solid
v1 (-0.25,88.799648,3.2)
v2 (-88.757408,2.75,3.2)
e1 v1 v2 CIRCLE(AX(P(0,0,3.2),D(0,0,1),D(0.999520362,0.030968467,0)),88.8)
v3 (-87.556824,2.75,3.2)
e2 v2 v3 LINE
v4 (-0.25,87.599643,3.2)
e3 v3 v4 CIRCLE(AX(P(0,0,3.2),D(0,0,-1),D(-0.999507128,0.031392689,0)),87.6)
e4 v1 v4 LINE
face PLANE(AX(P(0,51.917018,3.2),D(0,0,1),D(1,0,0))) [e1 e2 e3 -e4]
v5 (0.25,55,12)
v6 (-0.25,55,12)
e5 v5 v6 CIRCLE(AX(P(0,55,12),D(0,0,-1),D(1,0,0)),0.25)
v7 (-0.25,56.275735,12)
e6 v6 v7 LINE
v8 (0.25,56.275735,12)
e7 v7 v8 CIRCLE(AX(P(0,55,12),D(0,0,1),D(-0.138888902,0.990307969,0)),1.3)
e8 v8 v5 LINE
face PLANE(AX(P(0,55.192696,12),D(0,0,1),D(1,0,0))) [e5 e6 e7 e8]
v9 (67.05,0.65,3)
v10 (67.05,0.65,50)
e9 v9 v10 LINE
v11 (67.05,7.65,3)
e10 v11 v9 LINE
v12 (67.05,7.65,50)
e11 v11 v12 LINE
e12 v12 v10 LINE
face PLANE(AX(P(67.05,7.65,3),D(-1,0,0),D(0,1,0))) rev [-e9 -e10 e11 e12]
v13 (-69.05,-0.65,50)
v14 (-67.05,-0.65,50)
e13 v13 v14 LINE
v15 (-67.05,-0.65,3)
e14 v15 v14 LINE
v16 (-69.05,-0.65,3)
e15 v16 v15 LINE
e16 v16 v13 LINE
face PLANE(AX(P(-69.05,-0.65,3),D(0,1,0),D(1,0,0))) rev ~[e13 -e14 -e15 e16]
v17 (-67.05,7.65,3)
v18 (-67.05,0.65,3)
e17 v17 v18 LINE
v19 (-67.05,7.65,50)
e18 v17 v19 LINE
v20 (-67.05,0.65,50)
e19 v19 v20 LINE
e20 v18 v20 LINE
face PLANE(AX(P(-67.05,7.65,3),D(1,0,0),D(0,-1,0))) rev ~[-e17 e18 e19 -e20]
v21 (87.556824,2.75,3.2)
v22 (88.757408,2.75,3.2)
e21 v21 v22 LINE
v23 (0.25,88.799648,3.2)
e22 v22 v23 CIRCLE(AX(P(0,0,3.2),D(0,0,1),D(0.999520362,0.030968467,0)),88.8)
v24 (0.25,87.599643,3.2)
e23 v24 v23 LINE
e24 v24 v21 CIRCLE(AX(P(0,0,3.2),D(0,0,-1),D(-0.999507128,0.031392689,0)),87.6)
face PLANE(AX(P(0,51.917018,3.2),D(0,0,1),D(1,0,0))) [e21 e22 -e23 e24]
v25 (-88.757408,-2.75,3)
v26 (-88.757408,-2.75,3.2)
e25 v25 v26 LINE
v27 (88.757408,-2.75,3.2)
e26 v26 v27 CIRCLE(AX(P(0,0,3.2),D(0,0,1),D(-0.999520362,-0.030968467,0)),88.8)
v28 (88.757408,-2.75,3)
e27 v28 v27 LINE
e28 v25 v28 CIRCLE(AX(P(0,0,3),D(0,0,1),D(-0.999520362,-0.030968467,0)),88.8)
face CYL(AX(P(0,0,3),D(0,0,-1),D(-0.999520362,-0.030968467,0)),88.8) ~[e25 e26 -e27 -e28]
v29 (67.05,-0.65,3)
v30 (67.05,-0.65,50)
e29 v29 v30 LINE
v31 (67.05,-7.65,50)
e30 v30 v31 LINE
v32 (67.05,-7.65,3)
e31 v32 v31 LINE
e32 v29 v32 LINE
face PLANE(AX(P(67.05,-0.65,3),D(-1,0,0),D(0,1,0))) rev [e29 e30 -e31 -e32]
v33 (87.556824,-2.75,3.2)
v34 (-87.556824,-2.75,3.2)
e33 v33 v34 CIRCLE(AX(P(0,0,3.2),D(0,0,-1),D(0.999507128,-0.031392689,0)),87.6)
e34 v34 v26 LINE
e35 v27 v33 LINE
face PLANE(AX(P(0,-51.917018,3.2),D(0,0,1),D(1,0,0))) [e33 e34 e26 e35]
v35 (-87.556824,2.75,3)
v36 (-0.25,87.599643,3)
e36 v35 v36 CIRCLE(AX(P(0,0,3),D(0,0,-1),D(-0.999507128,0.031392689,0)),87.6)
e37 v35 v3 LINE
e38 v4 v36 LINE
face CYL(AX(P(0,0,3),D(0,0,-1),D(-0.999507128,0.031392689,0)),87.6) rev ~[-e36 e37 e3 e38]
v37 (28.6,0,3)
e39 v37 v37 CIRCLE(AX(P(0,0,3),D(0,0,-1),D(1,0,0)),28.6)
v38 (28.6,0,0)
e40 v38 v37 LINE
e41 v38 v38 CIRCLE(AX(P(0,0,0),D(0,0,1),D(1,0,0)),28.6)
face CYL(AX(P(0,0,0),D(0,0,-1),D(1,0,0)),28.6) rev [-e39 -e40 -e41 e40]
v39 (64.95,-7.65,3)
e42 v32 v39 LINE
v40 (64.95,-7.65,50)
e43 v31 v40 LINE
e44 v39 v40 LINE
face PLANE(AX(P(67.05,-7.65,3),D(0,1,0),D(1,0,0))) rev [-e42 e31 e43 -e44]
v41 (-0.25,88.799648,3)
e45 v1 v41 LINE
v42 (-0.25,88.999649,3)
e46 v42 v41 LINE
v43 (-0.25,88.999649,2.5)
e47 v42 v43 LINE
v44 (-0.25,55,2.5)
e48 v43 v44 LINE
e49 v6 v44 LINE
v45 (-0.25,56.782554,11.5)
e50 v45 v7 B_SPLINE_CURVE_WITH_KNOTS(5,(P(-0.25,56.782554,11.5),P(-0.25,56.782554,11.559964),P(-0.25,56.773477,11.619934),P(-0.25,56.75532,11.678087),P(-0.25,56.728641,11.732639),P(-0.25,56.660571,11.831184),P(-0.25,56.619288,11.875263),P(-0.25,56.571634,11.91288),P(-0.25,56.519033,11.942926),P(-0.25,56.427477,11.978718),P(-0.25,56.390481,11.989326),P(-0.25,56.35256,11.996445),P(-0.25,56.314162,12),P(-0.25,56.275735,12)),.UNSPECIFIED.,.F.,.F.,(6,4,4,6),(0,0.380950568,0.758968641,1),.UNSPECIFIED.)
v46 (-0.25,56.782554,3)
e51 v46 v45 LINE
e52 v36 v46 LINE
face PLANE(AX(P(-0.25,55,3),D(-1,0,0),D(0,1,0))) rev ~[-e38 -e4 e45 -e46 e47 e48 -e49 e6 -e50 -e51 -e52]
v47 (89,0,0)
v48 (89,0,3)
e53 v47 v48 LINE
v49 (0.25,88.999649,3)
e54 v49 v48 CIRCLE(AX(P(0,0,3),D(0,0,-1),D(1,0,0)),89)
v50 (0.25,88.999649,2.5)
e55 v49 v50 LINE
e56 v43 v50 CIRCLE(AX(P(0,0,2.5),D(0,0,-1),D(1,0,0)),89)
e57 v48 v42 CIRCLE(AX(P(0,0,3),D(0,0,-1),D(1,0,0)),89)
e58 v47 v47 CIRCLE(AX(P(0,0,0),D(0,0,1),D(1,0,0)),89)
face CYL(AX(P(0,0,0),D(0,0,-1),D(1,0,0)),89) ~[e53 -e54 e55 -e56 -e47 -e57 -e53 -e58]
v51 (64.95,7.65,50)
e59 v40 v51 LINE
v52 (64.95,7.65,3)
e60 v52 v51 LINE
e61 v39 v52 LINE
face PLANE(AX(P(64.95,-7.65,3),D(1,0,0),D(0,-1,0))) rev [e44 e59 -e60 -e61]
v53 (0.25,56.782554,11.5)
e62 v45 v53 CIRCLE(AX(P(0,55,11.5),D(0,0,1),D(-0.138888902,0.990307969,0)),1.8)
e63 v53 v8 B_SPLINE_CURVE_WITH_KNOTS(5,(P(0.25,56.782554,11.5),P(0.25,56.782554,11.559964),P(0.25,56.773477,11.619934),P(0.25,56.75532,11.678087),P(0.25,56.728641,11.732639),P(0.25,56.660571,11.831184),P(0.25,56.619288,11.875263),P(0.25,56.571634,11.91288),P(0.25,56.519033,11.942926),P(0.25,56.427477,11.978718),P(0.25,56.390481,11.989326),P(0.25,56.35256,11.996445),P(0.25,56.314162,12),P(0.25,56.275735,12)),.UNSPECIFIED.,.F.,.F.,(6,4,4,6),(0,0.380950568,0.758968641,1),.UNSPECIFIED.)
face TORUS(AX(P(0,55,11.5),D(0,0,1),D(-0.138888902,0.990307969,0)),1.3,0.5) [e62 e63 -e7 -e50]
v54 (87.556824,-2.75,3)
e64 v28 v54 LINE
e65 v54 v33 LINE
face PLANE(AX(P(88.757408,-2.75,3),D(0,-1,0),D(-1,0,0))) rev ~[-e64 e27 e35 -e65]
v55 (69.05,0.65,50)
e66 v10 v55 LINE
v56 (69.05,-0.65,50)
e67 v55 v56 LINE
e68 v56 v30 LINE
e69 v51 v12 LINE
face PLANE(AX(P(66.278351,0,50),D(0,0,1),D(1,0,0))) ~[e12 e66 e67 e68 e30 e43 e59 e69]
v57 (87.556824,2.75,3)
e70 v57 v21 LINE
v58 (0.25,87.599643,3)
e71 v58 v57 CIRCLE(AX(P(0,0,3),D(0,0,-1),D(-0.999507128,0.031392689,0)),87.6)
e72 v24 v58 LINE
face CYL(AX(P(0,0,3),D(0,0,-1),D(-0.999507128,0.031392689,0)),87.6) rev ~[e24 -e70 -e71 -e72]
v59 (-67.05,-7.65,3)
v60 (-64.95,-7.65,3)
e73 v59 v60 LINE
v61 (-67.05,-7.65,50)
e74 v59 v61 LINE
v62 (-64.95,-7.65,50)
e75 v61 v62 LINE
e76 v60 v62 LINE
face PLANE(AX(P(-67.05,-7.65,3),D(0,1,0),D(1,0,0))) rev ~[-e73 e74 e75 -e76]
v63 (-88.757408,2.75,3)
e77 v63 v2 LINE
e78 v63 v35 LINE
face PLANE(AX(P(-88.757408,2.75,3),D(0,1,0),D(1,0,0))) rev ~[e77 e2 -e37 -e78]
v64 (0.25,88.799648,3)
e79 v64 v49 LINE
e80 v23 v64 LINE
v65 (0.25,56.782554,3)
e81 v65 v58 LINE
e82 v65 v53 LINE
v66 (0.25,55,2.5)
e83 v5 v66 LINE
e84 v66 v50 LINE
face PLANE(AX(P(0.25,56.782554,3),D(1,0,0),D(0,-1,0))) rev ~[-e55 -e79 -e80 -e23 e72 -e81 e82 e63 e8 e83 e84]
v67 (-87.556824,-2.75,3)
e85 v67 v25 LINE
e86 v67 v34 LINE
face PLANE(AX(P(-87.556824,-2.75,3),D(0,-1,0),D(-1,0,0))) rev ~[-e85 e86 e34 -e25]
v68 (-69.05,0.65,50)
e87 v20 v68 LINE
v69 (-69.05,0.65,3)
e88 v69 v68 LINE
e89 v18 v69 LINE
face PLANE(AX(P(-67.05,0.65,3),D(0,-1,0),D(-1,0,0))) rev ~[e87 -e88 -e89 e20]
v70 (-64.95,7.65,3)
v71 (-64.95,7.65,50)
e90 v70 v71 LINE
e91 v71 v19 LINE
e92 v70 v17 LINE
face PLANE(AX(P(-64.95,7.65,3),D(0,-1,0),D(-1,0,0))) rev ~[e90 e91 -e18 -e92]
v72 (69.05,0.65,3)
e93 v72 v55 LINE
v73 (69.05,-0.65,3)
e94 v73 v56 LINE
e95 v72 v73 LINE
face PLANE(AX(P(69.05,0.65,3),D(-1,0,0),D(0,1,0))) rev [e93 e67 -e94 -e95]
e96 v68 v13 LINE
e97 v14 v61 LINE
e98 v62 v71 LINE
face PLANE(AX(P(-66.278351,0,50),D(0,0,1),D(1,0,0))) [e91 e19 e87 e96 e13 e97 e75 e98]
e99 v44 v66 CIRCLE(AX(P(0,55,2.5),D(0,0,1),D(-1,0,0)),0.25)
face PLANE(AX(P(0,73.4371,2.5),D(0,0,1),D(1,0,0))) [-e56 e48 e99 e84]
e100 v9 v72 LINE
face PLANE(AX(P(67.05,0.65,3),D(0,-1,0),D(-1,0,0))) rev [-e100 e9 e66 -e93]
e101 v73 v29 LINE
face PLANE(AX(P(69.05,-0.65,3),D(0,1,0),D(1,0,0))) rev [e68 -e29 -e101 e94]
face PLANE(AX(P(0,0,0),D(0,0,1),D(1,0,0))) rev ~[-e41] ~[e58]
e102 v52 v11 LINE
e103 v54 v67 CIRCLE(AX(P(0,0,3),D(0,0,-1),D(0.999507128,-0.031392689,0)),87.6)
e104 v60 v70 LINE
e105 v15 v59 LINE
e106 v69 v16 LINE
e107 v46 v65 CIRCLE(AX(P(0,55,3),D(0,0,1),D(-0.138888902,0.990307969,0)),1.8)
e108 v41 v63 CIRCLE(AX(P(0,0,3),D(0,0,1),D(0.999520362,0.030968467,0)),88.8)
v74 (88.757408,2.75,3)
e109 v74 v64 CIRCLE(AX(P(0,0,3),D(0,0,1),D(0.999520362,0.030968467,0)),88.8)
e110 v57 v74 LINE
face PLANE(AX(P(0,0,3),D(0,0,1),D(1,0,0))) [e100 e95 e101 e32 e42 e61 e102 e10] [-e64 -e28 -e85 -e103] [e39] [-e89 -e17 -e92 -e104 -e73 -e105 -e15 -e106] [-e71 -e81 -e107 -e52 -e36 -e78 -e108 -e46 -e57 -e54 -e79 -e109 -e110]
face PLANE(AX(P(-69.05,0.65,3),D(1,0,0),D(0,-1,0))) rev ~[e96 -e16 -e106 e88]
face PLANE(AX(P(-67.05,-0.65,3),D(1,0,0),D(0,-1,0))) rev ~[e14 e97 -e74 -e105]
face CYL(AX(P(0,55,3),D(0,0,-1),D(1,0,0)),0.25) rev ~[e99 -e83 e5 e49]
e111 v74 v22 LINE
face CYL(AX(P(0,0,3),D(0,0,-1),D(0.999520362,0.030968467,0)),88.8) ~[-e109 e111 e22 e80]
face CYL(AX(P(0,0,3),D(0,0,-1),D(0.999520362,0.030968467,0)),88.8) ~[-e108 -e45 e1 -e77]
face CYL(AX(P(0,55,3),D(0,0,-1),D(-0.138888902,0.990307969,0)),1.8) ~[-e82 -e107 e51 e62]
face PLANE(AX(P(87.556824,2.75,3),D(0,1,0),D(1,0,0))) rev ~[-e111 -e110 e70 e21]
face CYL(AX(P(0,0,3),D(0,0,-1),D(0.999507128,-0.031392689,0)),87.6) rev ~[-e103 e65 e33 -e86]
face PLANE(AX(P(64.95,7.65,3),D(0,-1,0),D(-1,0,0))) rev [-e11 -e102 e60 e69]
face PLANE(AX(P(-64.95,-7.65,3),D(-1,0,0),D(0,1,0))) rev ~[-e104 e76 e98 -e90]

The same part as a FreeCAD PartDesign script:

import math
import FreeCAD as App
import Part
import Sketcher
from FreeCAD import Vector


def edges_at(feature, points):
    """Names of the edges that pass closest to the given points."""
    edges = feature.Shape.Edges
    near = lambda p: min(range(len(edges)), key=lambda i: edges[i].distToShape(Part.Vertex(*p))[0])
    return sorted({f"Edge{near(p) + 1}" for p in points})

doc = App.newDocument("Part")
params = doc.addObject("Spreadsheet::Sheet", "Params")
for row, (alias, value) in enumerate([
    ("sketch1_diameter", "178 mm"),
    ("sketch1_diameter2", "57.2 mm"),
    ("pad1_length", "3 mm"),
    ("sketch2_width", "2 mm"),
    ("sketch2_height", "7 mm"),
    ("sketch2_width2", "2.1 mm"),
    ("sketch2_height2", "1.3 mm"),
    ("pad2_length", "47 mm"),
    ("sketch3_radius", "1.8 mm"),
    ("sketch3_radius2", "0.25 mm"),
    ("pad3_length", "9 mm"),
    ("fillet_radius", "0.5 mm"),
    ("sketch4_radius", "88.8 mm"),
    ("sketch4_radius2", "87.6 mm"),
    ("pad4_length", "0.2 mm"),
    ("sketch5_height", "37 mm"),
    ("sketch5_radius", "0.25 mm"),
    ("pocket1_length", "9.5 mm"),
], start=1):
    params.set(f"A{row}", alias)
    params.set(f"B{row}", "=" + value)
    params.setAlias(f"B{row}", alias)

body = doc.addObject("PartDesign::Body", "Body")

# Sketch on XY plane
sketch1 = body.newObject("Sketcher::SketchObject", "Sketch")
sketch1.AttachmentSupport = (doc.getObject("XY_Plane"), [""])
sketch1.MapMode = "FlatFace"
sketch1.addGeometry([
    Part.Circle(Vector(0, 0, 0), Vector(0, 0, 1), 89),
    Part.Circle(Vector(0, 0, 0), Vector(0, 0, 1), 29),
], False)
sketch1.addConstraint([
    Sketcher.Constraint("Coincident", 0, 3, -1, 1),
    Sketcher.Constraint("Coincident", 1, 3, -1, 1),
    Sketcher.Constraint("Diameter", 0, 178.0),
    Sketcher.Constraint("Diameter", 1, 57.2),
])
sketch1.setExpression("Constraints[2]", "Params.sketch1_diameter")
sketch1.setExpression("Constraints[3]", "Params.sketch1_diameter2")
pad1 = body.newObject("PartDesign::Pad", "Pad")
pad1.Profile = sketch1
pad1.setExpression("Length", "Params.pad1_length")

# Sketch on XY plane
sketch2 = body.newObject("Sketcher::SketchObject", "Sketch001")
sketch2.AttachmentSupport = (doc.getObject("XY_Plane"), [""])
sketch2.MapMode = "FlatFace"
sketch2.AttachmentOffset = App.Placement(Vector(0, 0, 3), App.Rotation())
sketch2.addGeometry([
    Part.LineSegment(Vector(-65, 7.7, 0), Vector(-67, 7.7, 0)),  # 0
    Part.LineSegment(Vector(-67, 7.7, 0), Vector(-67, 0.7, 0)),  # 1
    Part.LineSegment(Vector(-67, 0.7, 0), Vector(-69, 0.7, 0)),  # 2
    Part.LineSegment(Vector(-69, 0.7, 0), Vector(-69, -0.7, 0)),  # 3
    Part.LineSegment(Vector(-69, -0.7, 0), Vector(-67, -0.7, 0)),  # 4
    Part.LineSegment(Vector(-67, -0.7, 0), Vector(-67, -7.7, 0)),  # 5
    Part.LineSegment(Vector(-67, -7.7, 0), Vector(-65, -7.7, 0)),  # 6
    Part.LineSegment(Vector(-65, -7.7, 0), Vector(-65, 7.7, 0)),  # 7
], False)
sketch2.addConstraint([
    Sketcher.Constraint("Coincident", 0, 2, 1, 1),
    Sketcher.Constraint("Coincident", 1, 2, 2, 1),
    Sketcher.Constraint("Coincident", 2, 2, 3, 1),
    Sketcher.Constraint("Coincident", 3, 2, 4, 1),
    Sketcher.Constraint("Coincident", 4, 2, 5, 1),
    Sketcher.Constraint("Coincident", 5, 2, 6, 1),
    Sketcher.Constraint("Coincident", 6, 2, 7, 1),
    Sketcher.Constraint("Coincident", 7, 2, 0, 1),
    Sketcher.Constraint("Horizontal", 0),
    Sketcher.Constraint("Vertical", 1),
    Sketcher.Constraint("Horizontal", 2),
    Sketcher.Constraint("Vertical", 3),
    Sketcher.Constraint("Horizontal", 4),
    Sketcher.Constraint("Vertical", 5),
    Sketcher.Constraint("Horizontal", 6),
    Sketcher.Constraint("Vertical", 7),
    Sketcher.Constraint("Symmetric", 1, 2, 4, 2, -1),
    Sketcher.Constraint("Equal", 1, 5),
    Sketcher.Constraint("DistanceX", 2, 2, 2, 1, 2.0),
    Sketcher.Constraint("DistanceY", 1, 2, 1, 1, 7.0),
    Sketcher.Constraint("DistanceX", 0, 2, 0, 1, 2.1),
    Sketcher.Constraint("DistanceY", 3, 2, 3, 1, 1.3),
    Sketcher.Constraint("DistanceX", 0, 2, -1, 1, 67.05),
])
sketch2.setExpression("Constraints[18]", "Params.sketch2_width")
sketch2.setExpression("Constraints[19]", "Params.sketch2_height")
sketch2.setExpression("Constraints[20]", "Params.sketch2_width2")
sketch2.setExpression("Constraints[21]", "Params.sketch2_height2")
pad2 = body.newObject("PartDesign::Pad", "Pad001")
pad2.Profile = sketch2
pad2.setExpression("Length", "Params.pad2_length")
body2 = doc.addObject("PartDesign::Body", "Body001")
doc.recompute()

body2.BaseFeature = body
doc.recompute()

mirroring = doc.addObject("Part::Mirroring", "Mirroring")
mirroring.Source = body
mirroring.Base = Vector(0, 0, 0)
mirroring.Normal = Vector(1, 0, 0)
body3 = doc.addObject("PartDesign::Body", "Body002")
body3.BaseFeature = mirroring
boolean = body2.newObject("PartDesign::Boolean", "Boolean")
boolean.Type = "Fuse"
boolean.addObjects([body3])
doc.recompute()

# Sketch on XY plane
sketch3 = body2.newObject("Sketcher::SketchObject", "Sketch002")
sketch3.AttachmentSupport = (doc.getObject("XY_Plane001"), [""])
sketch3.MapMode = "FlatFace"
sketch3.AttachmentOffset = App.Placement(Vector(0, 0, 3), App.Rotation())
sketch3.addGeometry([
    Part.LineSegment(Vector(-0.25, 55, 0), Vector(-0.25, 56.78, 0)),
    Part.ArcOfCircle(Part.Circle(Vector(0, 55, 0), Vector(0, 0, 1), 1.8), math.radians(98), math.radians(442)),
    Part.LineSegment(Vector(0.25, 56.78, 0), Vector(0.25, 55, 0)),
    Part.ArcOfCircle(Part.Circle(Vector(0, 55, 0), Vector(0, 0, 1), 0.25), math.radians(180), math.radians(360)),
], False)
sketch3.addConstraint([
    Sketcher.Constraint("Coincident", 0, 2, 1, 1),
    Sketcher.Constraint("Coincident", 1, 2, 2, 1),
    Sketcher.Constraint("Tangent", 2, 2, 3, 2),
    Sketcher.Constraint("Tangent", 3, 1, 0, 1),
    Sketcher.Constraint("Vertical", 0),
    Sketcher.Constraint("Vertical", 2),
    Sketcher.Constraint("Coincident", 3, 3, 1, 3),
    Sketcher.Constraint("PointOnObject", 1, 3, -2),
    Sketcher.Constraint("Radius", 1, 1.8),
    Sketcher.Constraint("Radius", 3, 0.25),
    Sketcher.Constraint("DistanceY", -1, 1, 1, 3, 55.0),
])
sketch3.setExpression("Constraints[8]", "Params.sketch3_radius")
sketch3.setExpression("Constraints[9]", "Params.sketch3_radius2")
pad3 = body2.newObject("PartDesign::Pad", "Pad002")
pad3.Profile = sketch3
pad3.setExpression("Length", "Params.pad3_length")
doc.recompute()

fillet = body2.newObject("PartDesign::Fillet", "Fillet")
fillet.Base = (pad3, edges_at(pad3, [(0, 53.2, 12)]))
fillet.setExpression("Radius", "Params.fillet_radius")

# Sketch on XY plane
sketch4 = body2.newObject("Sketcher::SketchObject", "Sketch003")
sketch4.AttachmentSupport = (doc.getObject("XY_Plane001"), [""])
sketch4.MapMode = "FlatFace"
sketch4.AttachmentOffset = App.Placement(Vector(0, 0, 3), App.Rotation())
sketch4.addGeometry([
    Part.LineSegment(Vector(87.6, 2.8, 0), Vector(88.8, 2.8, 0)),  # 0
    Part.ArcOfCircle(Part.Circle(Vector(0, 0, 0), Vector(0, 0, 1), 88.8), math.radians(2), math.radians(178)),  # 1
    Part.LineSegment(Vector(-88.8, 2.8, 0), Vector(-87.6, 2.8, 0)),  # 2
    Part.ArcOfCircle(Part.Circle(Vector(0, 0, 0), Vector(0, 0, 1), 87.6), math.radians(2), math.radians(178)),  # 3
    Part.LineSegment(Vector(88.8, -2.8, 0), Vector(87.6, -2.8, 0)),  # 4
    Part.ArcOfCircle(Part.Circle(Vector(0, 0, 0), Vector(0, 0, 1), 87.6), math.radians(-178), math.radians(-2)),  # 5
    Part.LineSegment(Vector(-87.6, -2.8, 0), Vector(-88.8, -2.8, 0)),  # 6
    Part.ArcOfCircle(Part.Circle(Vector(0, 0, 0), Vector(0, 0, 1), 88.8), math.radians(-178), math.radians(-2)),  # 7
], False)
sketch4.addConstraint([
    Sketcher.Constraint("Coincident", 0, 2, 1, 1),
    Sketcher.Constraint("Coincident", 1, 2, 2, 1),
    Sketcher.Constraint("Coincident", 2, 2, 3, 2),
    Sketcher.Constraint("Coincident", 3, 1, 0, 1),
    Sketcher.Constraint("Coincident", 4, 2, 5, 2),
    Sketcher.Constraint("Coincident", 5, 1, 6, 1),
    Sketcher.Constraint("Coincident", 6, 2, 7, 1),
    Sketcher.Constraint("Coincident", 7, 2, 4, 1),
    Sketcher.Constraint("Horizontal", 0),
    Sketcher.Constraint("Horizontal", 2),
    Sketcher.Constraint("Horizontal", 4),
    Sketcher.Constraint("Horizontal", 6),
    Sketcher.Constraint("Coincident", 1, 3, -1, 1),
    Sketcher.Constraint("Coincident", 3, 3, -1, 1),
    Sketcher.Constraint("Coincident", 5, 3, -1, 1),
    Sketcher.Constraint("Coincident", 7, 3, -1, 1),
    Sketcher.Constraint("Equal", 3, 5),
    Sketcher.Constraint("Equal", 1, 7),
    Sketcher.Constraint("Horizontal", 0, 2, 1, 2),
    Sketcher.Constraint("Horizontal", 4, 2, 5, 1),
    Sketcher.Constraint("Vertical", 3, 1, 4, 2),
    Sketcher.Constraint("Radius", 1, 88.8),
    Sketcher.Constraint("Radius", 3, 87.6),
    Sketcher.Constraint("DistanceY", 4, 2, 3, 1, 5.5),
])
sketch4.setExpression("Constraints[21]", "Params.sketch4_radius")
sketch4.setExpression("Constraints[22]", "Params.sketch4_radius2")
pad4 = body2.newObject("PartDesign::Pad", "Pad003")
pad4.Profile = sketch4
pad4.setExpression("Length", "Params.pad4_length")

# Sketch on XY plane
sketch5 = body2.newObject("Sketcher::SketchObject", "Sketch004")
sketch5.AttachmentSupport = (doc.getObject("XY_Plane001"), [""])
sketch5.MapMode = "FlatFace"
sketch5.AttachmentOffset = App.Placement(Vector(0, 0, 12), App.Rotation())
sketch5.addGeometry([
    Part.LineSegment(Vector(0.25, 55, 0), Vector(0.25, 92, 0)),
    Part.LineSegment(Vector(0.25, 92, 0), Vector(-0.25, 92, 0)),
    Part.LineSegment(Vector(-0.25, 92, 0), Vector(-0.25, 55, 0)),
    Part.ArcOfCircle(Part.Circle(Vector(0, 55, 0), Vector(0, 0, 1), 0.25), math.radians(180), math.radians(360)),
], False)
sketch5.addConstraint([
    Sketcher.Constraint("Coincident", 0, 2, 1, 1),
    Sketcher.Constraint("Coincident", 1, 2, 2, 1),
    Sketcher.Constraint("Tangent", 2, 2, 3, 1),
    Sketcher.Constraint("Tangent", 3, 2, 0, 1),
    Sketcher.Constraint("Vertical", 0),
    Sketcher.Constraint("Horizontal", 1),
    Sketcher.Constraint("Vertical", 2),
    Sketcher.Constraint("PointOnObject", 3, 3, -2),
    Sketcher.Constraint("DistanceY", 0, 1, 0, 2, 37.0),
    Sketcher.Constraint("Radius", 3, 0.25),
    Sketcher.Constraint("DistanceY", -1, 1, 3, 3, 55.0),
])
sketch5.setExpression("Constraints[8]", "Params.sketch5_height")
sketch5.setExpression("Constraints[9]", "Params.sketch5_radius")
pocket1 = body2.newObject("PartDesign::Pocket", "Pocket")
pocket1.Profile = sketch5
pocket1.setExpression("Length", "Params.pocket1_length")
mirroring.Visibility = False

doc.recompute()
